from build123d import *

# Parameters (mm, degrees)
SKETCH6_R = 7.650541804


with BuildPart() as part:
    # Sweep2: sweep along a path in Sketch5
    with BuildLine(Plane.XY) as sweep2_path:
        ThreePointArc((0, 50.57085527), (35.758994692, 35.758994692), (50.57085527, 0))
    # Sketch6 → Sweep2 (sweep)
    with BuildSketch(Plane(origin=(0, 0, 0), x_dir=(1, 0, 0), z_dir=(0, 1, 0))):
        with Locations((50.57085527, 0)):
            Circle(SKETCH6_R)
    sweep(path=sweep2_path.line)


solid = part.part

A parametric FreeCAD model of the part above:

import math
import FreeCAD as App
import Part
import Sketcher

doc = App.newDocument("Part")
body = doc.addObject("PartDesign::Body", "Body")

# Sketch on XZ plane
sketch1 = body.newObject("Sketcher::SketchObject", "Sketch")
sketch1.AttachmentSupport = (doc.getObject("XZ_Plane"), [""])
sketch1.MapMode = "FlatFace"
sketch1.addGeometry(Part.Circle(App.Vector(51, 0, 0), App.Vector(0, 0, 1), 8), False)
sketch1.addConstraint([
    Sketcher.Constraint("PointOnObject", 0, 3, -1),
    Sketcher.Constraint("Diameter", 0, 15.301084),
    Sketcher.Constraint("DistanceX", -1, 1, 0, 3, 50.570855),
])

# Sketch on XY plane
sketch2 = body.newObject("Sketcher::SketchObject", "Sketch001")
sketch2.AttachmentSupport = (doc.getObject("XY_Plane"), [""])
sketch2.MapMode = "FlatFace"
sketch2.addGeometry(Part.ArcOfCircle(Part.Circle(App.Vector(0, 0, 0), App.Vector(0, 0, 1), 51), math.radians(0), math.radians(90)), False)
sketch2.addConstraint([
    Sketcher.Constraint("Coincident", 0, 3, -1, 1),
    Sketcher.Constraint("PointOnObject", 0, 1, -1),
    Sketcher.Constraint("PointOnObject", 0, 2, -2),
    Sketcher.Constraint("Radius", 0, 50.570855),
])
doc.recompute()

additivepipe = body.newObject("PartDesign::AdditivePipe", "AdditivePipe")
additivepipe.Profile = sketch1
additivepipe.Spine = (sketch2, ["Edge1"])

doc.recompute()
